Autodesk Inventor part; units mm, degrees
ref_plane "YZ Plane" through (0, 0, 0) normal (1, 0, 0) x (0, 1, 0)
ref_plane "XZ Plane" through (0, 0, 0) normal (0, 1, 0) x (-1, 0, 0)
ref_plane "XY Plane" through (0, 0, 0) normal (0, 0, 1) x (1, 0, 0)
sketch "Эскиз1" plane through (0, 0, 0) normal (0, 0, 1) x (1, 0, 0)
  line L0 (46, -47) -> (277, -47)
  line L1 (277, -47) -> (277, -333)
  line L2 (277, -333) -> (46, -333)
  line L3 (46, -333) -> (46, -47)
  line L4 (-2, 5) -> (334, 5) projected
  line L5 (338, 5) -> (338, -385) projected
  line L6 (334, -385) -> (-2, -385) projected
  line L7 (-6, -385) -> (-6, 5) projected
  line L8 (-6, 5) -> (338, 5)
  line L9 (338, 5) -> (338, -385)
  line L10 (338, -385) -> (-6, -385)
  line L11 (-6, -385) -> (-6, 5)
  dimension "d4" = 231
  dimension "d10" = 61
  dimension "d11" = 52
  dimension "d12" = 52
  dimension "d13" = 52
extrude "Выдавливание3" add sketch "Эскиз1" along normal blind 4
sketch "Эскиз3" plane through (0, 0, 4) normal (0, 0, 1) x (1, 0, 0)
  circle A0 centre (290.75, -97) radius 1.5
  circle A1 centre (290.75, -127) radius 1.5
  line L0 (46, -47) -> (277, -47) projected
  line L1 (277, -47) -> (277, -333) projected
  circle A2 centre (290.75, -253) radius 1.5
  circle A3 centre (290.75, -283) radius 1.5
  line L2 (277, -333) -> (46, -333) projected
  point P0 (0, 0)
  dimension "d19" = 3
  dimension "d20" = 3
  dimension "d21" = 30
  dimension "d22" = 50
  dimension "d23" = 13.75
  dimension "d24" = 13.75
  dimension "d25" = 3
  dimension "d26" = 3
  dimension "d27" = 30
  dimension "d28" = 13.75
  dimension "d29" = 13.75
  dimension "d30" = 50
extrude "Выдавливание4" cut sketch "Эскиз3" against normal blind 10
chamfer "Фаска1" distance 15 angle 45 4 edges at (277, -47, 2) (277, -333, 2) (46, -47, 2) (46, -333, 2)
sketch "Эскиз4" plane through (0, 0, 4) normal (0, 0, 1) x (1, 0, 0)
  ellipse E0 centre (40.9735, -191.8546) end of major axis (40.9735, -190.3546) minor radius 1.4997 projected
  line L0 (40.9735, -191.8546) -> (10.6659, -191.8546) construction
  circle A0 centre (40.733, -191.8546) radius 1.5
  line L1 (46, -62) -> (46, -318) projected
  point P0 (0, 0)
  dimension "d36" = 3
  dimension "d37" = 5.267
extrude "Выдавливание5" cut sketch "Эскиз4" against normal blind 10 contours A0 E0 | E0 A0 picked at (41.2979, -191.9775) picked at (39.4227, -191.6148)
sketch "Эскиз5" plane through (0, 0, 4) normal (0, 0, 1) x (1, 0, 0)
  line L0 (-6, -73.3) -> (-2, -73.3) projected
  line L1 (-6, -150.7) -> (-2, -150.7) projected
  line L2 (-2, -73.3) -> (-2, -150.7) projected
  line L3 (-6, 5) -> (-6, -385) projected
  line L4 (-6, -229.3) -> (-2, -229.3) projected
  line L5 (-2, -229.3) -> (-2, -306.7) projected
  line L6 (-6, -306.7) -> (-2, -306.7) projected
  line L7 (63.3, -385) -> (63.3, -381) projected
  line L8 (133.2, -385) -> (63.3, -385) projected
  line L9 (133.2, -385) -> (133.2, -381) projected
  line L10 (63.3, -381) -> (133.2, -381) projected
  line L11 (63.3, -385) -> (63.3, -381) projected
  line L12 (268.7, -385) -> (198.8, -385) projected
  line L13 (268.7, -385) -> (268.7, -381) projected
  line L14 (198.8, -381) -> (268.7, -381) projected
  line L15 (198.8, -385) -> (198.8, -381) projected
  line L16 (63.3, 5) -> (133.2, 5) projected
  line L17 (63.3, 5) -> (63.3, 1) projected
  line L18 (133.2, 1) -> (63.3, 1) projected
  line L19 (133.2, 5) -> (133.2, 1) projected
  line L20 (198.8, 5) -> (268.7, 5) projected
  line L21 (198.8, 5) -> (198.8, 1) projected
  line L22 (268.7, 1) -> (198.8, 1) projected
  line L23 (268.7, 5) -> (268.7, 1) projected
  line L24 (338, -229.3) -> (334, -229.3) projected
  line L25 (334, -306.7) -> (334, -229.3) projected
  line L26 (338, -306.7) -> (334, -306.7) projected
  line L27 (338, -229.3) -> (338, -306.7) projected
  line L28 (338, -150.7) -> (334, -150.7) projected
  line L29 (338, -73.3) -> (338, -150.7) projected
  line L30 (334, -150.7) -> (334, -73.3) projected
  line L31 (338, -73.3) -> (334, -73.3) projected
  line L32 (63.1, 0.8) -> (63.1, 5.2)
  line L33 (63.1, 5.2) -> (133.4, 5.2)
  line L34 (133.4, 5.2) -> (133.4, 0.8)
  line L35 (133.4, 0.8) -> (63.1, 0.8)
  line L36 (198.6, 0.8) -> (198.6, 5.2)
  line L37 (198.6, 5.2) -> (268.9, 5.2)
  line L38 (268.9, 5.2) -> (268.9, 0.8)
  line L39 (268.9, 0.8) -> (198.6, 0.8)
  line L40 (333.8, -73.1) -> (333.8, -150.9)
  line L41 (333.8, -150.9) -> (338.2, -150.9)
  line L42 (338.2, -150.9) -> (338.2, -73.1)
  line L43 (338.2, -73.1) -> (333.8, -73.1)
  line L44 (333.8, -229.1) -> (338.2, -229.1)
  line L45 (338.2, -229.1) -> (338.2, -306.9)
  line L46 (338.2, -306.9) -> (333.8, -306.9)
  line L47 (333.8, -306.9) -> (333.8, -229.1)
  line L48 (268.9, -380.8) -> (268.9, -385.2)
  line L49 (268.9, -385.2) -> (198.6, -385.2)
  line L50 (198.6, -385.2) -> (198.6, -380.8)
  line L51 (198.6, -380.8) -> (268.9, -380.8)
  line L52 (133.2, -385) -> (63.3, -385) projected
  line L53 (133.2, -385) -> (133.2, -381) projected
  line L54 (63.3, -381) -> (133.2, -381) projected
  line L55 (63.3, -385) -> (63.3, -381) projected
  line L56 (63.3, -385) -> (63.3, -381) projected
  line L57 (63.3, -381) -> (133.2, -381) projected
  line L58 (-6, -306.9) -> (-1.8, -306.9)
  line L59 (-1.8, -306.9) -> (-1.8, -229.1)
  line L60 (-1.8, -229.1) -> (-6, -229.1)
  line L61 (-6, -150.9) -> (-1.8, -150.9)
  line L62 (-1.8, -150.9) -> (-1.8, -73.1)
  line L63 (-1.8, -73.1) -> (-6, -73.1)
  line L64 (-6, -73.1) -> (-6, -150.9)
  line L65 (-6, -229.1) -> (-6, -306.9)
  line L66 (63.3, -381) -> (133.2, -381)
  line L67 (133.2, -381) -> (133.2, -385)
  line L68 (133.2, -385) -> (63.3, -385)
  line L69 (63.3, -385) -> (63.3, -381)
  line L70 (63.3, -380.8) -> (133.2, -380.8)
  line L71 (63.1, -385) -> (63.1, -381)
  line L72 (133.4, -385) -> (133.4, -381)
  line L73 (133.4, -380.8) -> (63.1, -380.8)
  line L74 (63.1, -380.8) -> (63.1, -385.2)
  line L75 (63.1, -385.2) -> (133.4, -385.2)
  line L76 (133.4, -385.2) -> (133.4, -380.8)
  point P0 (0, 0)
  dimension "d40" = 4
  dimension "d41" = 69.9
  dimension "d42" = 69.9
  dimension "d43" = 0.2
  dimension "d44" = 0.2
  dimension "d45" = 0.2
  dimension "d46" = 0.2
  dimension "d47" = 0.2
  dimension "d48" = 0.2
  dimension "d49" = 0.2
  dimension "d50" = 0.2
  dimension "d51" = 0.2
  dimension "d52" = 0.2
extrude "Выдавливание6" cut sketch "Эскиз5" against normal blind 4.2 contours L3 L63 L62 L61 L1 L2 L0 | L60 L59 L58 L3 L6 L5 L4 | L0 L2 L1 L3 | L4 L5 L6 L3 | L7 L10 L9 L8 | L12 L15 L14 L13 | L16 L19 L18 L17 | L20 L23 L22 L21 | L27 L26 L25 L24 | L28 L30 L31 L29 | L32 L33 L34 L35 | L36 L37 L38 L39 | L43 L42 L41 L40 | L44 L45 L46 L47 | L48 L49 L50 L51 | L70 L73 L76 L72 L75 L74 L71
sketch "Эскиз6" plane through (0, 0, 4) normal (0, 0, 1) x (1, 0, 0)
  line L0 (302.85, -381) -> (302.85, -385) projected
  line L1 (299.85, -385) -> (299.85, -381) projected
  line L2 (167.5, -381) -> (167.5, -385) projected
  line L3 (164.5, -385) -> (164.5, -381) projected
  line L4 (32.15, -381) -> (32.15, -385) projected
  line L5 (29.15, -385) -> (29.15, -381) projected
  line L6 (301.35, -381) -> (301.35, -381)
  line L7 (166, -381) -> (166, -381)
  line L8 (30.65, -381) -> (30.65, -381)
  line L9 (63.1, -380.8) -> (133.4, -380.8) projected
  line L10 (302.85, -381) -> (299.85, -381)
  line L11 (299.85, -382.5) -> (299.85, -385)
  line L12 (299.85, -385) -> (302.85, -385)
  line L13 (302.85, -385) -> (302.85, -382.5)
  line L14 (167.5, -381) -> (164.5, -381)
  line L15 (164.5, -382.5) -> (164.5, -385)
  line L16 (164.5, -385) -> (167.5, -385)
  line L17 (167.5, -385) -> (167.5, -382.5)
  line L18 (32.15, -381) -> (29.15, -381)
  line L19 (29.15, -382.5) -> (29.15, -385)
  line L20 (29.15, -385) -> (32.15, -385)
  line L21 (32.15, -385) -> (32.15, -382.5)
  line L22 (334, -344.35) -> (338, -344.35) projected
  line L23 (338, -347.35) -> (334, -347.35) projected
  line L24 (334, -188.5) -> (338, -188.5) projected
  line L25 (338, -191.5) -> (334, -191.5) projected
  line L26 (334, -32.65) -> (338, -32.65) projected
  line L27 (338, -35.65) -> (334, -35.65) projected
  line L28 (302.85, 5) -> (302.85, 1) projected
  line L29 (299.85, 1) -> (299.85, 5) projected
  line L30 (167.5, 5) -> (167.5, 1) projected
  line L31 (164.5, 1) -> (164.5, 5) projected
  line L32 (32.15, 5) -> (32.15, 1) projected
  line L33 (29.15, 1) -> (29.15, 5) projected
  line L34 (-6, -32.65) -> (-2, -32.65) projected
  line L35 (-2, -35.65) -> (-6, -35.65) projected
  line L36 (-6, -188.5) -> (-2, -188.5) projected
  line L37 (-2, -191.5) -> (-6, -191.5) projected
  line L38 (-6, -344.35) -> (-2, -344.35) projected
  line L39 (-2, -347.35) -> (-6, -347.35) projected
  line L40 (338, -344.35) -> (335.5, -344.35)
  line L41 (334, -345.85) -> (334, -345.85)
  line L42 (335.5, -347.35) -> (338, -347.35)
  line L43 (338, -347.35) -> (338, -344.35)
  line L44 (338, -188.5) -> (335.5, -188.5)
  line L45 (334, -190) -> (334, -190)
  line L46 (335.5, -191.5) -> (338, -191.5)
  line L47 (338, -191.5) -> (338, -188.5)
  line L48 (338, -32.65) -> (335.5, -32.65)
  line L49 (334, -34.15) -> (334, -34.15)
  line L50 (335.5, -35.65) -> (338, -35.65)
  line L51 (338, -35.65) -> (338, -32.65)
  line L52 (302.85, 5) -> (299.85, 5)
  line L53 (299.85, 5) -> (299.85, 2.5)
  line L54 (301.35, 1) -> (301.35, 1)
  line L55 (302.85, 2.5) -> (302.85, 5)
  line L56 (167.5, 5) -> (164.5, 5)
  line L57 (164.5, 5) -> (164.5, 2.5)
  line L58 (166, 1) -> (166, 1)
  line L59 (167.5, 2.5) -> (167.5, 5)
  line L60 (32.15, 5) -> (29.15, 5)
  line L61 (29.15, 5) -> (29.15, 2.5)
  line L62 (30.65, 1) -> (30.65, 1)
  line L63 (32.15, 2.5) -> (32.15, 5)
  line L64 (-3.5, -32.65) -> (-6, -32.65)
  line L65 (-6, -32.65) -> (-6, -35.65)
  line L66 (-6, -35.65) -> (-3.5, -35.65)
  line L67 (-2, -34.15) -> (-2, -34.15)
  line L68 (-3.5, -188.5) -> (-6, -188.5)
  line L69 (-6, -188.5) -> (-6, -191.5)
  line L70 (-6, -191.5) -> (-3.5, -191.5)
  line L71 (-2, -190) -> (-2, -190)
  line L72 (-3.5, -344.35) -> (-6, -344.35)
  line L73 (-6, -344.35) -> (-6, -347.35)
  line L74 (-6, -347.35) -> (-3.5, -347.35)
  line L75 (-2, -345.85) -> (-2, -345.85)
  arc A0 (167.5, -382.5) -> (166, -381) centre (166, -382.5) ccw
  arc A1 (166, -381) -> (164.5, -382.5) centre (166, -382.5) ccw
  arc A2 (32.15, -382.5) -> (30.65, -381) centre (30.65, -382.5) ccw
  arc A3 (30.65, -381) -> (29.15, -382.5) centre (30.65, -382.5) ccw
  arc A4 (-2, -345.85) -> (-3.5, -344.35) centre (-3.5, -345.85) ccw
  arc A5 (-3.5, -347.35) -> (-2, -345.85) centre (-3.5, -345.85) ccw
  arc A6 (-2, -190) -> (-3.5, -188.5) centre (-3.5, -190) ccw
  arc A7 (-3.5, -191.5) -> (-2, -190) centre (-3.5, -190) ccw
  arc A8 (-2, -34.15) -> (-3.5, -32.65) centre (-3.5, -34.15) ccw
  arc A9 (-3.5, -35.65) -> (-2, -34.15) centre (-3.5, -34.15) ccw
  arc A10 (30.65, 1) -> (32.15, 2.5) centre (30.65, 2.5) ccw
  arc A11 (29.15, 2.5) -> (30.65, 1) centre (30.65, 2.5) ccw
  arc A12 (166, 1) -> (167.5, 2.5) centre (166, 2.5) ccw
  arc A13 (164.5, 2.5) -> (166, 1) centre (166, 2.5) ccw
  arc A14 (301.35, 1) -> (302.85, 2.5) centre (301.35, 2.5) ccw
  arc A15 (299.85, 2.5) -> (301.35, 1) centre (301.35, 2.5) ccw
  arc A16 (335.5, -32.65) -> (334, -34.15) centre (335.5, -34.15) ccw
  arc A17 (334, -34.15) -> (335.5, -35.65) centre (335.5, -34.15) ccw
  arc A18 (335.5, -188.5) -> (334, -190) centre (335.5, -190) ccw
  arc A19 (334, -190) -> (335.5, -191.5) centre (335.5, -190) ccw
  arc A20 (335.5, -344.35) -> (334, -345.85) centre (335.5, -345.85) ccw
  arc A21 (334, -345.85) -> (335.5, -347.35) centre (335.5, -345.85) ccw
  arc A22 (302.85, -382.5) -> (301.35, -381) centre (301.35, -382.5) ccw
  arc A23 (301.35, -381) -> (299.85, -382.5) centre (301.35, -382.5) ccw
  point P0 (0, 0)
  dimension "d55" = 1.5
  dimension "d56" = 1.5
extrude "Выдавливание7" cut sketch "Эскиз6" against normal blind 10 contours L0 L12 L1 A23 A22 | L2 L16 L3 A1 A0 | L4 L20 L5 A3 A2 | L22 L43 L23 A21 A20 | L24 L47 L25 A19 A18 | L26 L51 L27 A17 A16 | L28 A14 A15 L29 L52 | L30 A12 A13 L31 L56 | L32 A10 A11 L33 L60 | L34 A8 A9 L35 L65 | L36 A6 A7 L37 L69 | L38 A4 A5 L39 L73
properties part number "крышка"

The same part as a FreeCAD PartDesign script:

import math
import FreeCAD as App
import Part
import Sketcher

V = App.Vector
Q = App.Units.Quantity


def edges_at(feature, points):
    """Names of the edges that pass closest to the given points."""
    edges = feature.Shape.Edges
    near = lambda p: min(range(len(edges)), key=lambda i: edges[i].distToShape(Part.Vertex(*p))[0])
    return sorted({f"Edge{near(p) + 1}" for p in points})

doc = App.newDocument("Part")
params = doc.addObject("Spreadsheet::Sheet", "Params")
for row, (alias, value) in enumerate([
    ("sketch1_width", "231 mm"),
    ("sketch1_height", "390 mm"),
    ("pad1_length", "4 mm"),
    ("sketch2_diameter", "3 mm"),
    ("pocket1_length", "10 mm"),
    ("chamfer_size", "15 mm"),
    ("sketch3_diameter", "3 mm"),
    ("pocket2_length", "10 mm"),
    ("sketch4_width", "4.2 mm"),
    ("sketch4_width2", "70.3 mm"),
    ("sketch4_width3", "4.4 mm"),
    ("sketch4_height", "77.8 mm"),
    ("pocket3_length", "4.2 mm"),
    ("sketch5_radius", "1.5 mm"),
    ("sketch5_width", "2.5 mm"),
    ("pocket4_length", "10 mm"),
], start=1):
    params.set(f"A{row}", alias)
    params.set(f"B{row}", "=" + value)
    params.setAlias(f"B{row}", alias)

body = doc.addObject("PartDesign::Body", "Body")

sketch1 = body.newObject("Sketcher::SketchObject", "Sketch")
sketch1.AttachmentSupport = (doc.getObject("XY_Plane"), [""])
sketch1.MapMode = "FlatFace"
sketch1.addGeometry([
    Part.LineSegment(V(338, 5, 0), V(-6, 5, 0)),
    Part.LineSegment(V(-6, 5, 0), V(-6, -385, 0)),
    Part.LineSegment(V(-6, -385, 0), V(338, -385, 0)),
    Part.LineSegment(V(338, -385, 0), V(338, 5, 0)),
    Part.LineSegment(V(46, -333, 0), V(46, -47, 0)),
    Part.LineSegment(V(46, -47, 0), V(277, -47, 0)),
    Part.LineSegment(V(277, -47, 0), V(277, -333, 0)),
    Part.LineSegment(V(277, -333, 0), V(46, -333, 0)),
], False)
sketch1.addConstraint([
    Sketcher.Constraint("Coincident", 0, 2, 1, 1),
    Sketcher.Constraint("Coincident", 1, 2, 2, 1),
    Sketcher.Constraint("Coincident", 2, 2, 3, 1),
    Sketcher.Constraint("Coincident", 3, 2, 0, 1),
    Sketcher.Constraint("Coincident", 4, 2, 5, 1),
    Sketcher.Constraint("Coincident", 5, 2, 6, 1),
    Sketcher.Constraint("Coincident", 6, 2, 7, 1),
    Sketcher.Constraint("Coincident", 7, 2, 4, 1),
    Sketcher.Constraint("Horizontal", 0),
    Sketcher.Constraint("Vertical", 1),
    Sketcher.Constraint("Horizontal", 2),
    Sketcher.Constraint("Vertical", 3),
    Sketcher.Constraint("Vertical", 4),
    Sketcher.Constraint("Horizontal", 5),
    Sketcher.Constraint("Vertical", 6),
    Sketcher.Constraint("Horizontal", 7),
    Sketcher.Constraint("DistanceX", 5, 1, 5, 2, Q("231 mm")),
    Sketcher.Constraint("DistanceX", 0, 2, 4, 2, Q("52 mm")),
    Sketcher.Constraint("DistanceY", 4, 2, 0, 2, Q("52 mm")),
    Sketcher.Constraint("DistanceX", 5, 2, 3, 2, Q("61 mm")),
    Sketcher.Constraint("DistanceY", 2, 2, 6, 2, Q("52 mm")),
    Sketcher.Constraint("DistanceY", 1, 2, 1, 1, Q("390 mm")),
    Sketcher.Constraint("DistanceX", 0, 2, -1, 1, Q("6 mm")),
    Sketcher.Constraint("DistanceY", -1, 1, 0, 2, Q("5 mm")),
])
sketch1.setExpression("Constraints[16]", "Params.sketch1_width")
sketch1.setExpression("Constraints[21]", "Params.sketch1_height")
pad1 = body.newObject("PartDesign::Pad", "Pad")
pad1.Profile = sketch1
pad1.setExpression("Length", "Params.pad1_length")

sketch2 = body.newObject("Sketcher::SketchObject", "Sketch001")
sketch2.AttachmentSupport = (doc.getObject("XY_Plane"), [""])
sketch2.MapMode = "FlatFace"
sketch2.AttachmentOffset = App.Placement(V(0, 0, 4), App.Rotation())
sketch2.addGeometry([
    Part.Circle(V(290.8, -97, 0), V(0, 0, 1), 1.5),
    Part.Circle(V(290.8, -127, 0), V(0, 0, 1), 1.5),
    Part.Circle(V(290.8, -253, 0), V(0, 0, 1), 1.5),
    Part.Circle(V(290.8, -283, 0), V(0, 0, 1), 1.5),
], False)
sketch2.addConstraint([
    Sketcher.Constraint("Equal", 0, 1),
    Sketcher.Constraint("Equal", 1, 2),
    Sketcher.Constraint("Equal", 2, 3),
    Sketcher.Constraint("Vertical", 0, 3, 1, 3),
    Sketcher.Constraint("Vertical", 1, 3, 2, 3),
    Sketcher.Constraint("Vertical", 2, 3, 3, 3),
    Sketcher.Constraint("Diameter", 0, Q("3 mm")),
    Sketcher.Constraint("DistanceY", 1, 3, 0, 3, Q("30 mm")),
    Sketcher.Constraint("DistanceY", 3, 3, 2, 3, Q("30 mm")),
    Sketcher.Constraint("DistanceY", 0, 3, -1, 1, Q("97 mm")),
    Sketcher.Constraint("DistanceY", 2, 3, -1, 1, Q("253 mm")),
    Sketcher.Constraint("DistanceX", -1, 1, 0, 3, Q("290.75 mm")),
])
sketch2.setExpression("Constraints[6]", "Params.sketch2_diameter")
pocket1 = body.newObject("PartDesign::Pocket", "Pocket")
pocket1.Profile = sketch2
pocket1.setExpression("Length", "Params.pocket1_length")
doc.recompute()

chamfer = body.newObject("PartDesign::Chamfer", "Chamfer")
chamfer.Base = (pocket1, edges_at(pocket1, [
    (277, -47, 2),
    (277, -333, 2),
    (46, -47, 2),
    (46, -333, 2),
]))
chamfer.setExpression("Size", "Params.chamfer_size")

sketch3 = body.newObject("Sketcher::SketchObject", "Sketch002")
sketch3.AttachmentSupport = (doc.getObject("XY_Plane"), [""])
sketch3.MapMode = "FlatFace"
sketch3.AttachmentOffset = App.Placement(V(0, 0, 4), App.Rotation())
sketch3.addGeometry(Part.Circle(V(40.7, -191.9, 0), V(0, 0, 1), 1.5), False)
sketch3.addConstraint([
    Sketcher.Constraint("Diameter", 0, Q("3 mm")),
    Sketcher.Constraint("DistanceX", -1, 1, 0, 3, Q("40.733 mm")),
    Sketcher.Constraint("DistanceY", 0, 3, -1, 1, Q("191.8546 mm")),
])
sketch3.setExpression("Constraints[0]", "Params.sketch3_diameter")
pocket2 = body.newObject("PartDesign::Pocket", "Pocket001")
pocket2.Profile = sketch3
pocket2.setExpression("Length", "Params.pocket2_length")

sketch4 = body.newObject("Sketcher::SketchObject", "Sketch003")
sketch4.AttachmentSupport = (doc.getObject("XY_Plane"), [""])
sketch4.MapMode = "FlatFace"
sketch4.AttachmentOffset = App.Placement(V(0, 0, 4), App.Rotation())
sketch4.addGeometry([
    Part.LineSegment(V(-6, -73.1, 0), V(-6, -150.9, 0)),
    Part.LineSegment(V(-6, -150.9, 0), V(-1.8, -150.9, 0)),
    Part.LineSegment(V(-1.8, -150.9, 0), V(-1.8, -73.1, 0)),
    Part.LineSegment(V(-1.8, -73.1, 0), V(-6, -73.1, 0)),
    Part.LineSegment(V(-1.8, -229.1, 0), V(-6, -229.1, 0)),
    Part.LineSegment(V(-6, -229.1, 0), V(-6, -306.9, 0)),
    Part.LineSegment(V(-6, -306.9, 0), V(-1.8, -306.9, 0)),
    Part.LineSegment(V(-1.8, -306.9, 0), V(-1.8, -229.1, 0)),
    Part.LineSegment(V(63.1, -380.8, 0), V(63.1, -385.2, 0)),
    Part.LineSegment(V(63.1, -385.2, 0), V(133.4, -385.2, 0)),
    Part.LineSegment(V(133.4, -385.2, 0), V(133.4, -380.8, 0)),
    Part.LineSegment(V(133.4, -380.8, 0), V(63.1, -380.8, 0)),
    Part.LineSegment(V(268.9, -385.2, 0), V(268.9, -380.8, 0)),
    Part.LineSegment(V(268.9, -380.8, 0), V(198.6, -380.8, 0)),
    Part.LineSegment(V(198.6, -380.8, 0), V(198.6, -385.2, 0)),
    Part.LineSegment(V(198.6, -385.2, 0), V(268.9, -385.2, 0)),
    Part.LineSegment(V(63.1, 5.2, 0), V(63.1, 0.8, 0)),
    Part.LineSegment(V(63.1, 0.8, 0), V(133.4, 0.8, 0)),
    Part.LineSegment(V(133.4, 0.8, 0), V(133.4, 5.2, 0)),
    Part.LineSegment(V(133.4, 5.2, 0), V(63.1, 5.2, 0)),
    Part.LineSegment(V(198.6, 5.2, 0), V(198.6, 0.8, 0)),
    Part.LineSegment(V(198.6, 0.8, 0), V(268.9, 0.8, 0)),
    Part.LineSegment(V(268.9, 0.8, 0), V(268.9, 5.2, 0)),
    Part.LineSegment(V(268.9, 5.2, 0), V(198.6, 5.2, 0)),
    Part.LineSegment(V(338.2, -229.1, 0), V(333.8, -229.1, 0)),
    Part.LineSegment(V(333.8, -229.1, 0), V(333.8, -306.9, 0)),
    Part.LineSegment(V(333.8, -306.9, 0), V(338.2, -306.9, 0)),
    Part.LineSegment(V(338.2, -306.9, 0), V(338.2, -229.1, 0)),
    Part.LineSegment(V(338.2, -73.1, 0), V(333.8, -73.1, 0)),
    Part.LineSegment(V(333.8, -73.1, 0), V(333.8, -150.9, 0)),
    Part.LineSegment(V(333.8, -150.9, 0), V(338.2, -150.9, 0)),
    Part.LineSegment(V(338.2, -150.9, 0), V(338.2, -73.1, 0)),
], False)
sketch4.addConstraint([
    Sketcher.Constraint("Coincident", 0, 2, 1, 1),
    Sketcher.Constraint("Coincident", 1, 2, 2, 1),
    Sketcher.Constraint("Coincident", 2, 2, 3, 1),
    Sketcher.Constraint("Coincident", 3, 2, 0, 1),
    Sketcher.Constraint("Coincident", 4, 2, 5, 1),
    Sketcher.Constraint("Coincident", 5, 2, 6, 1),
    Sketcher.Constraint("Coincident", 6, 2, 7, 1),
    Sketcher.Constraint("Coincident", 7, 2, 4, 1),
    Sketcher.Constraint("Coincident", 8, 2, 9, 1),
    Sketcher.Constraint("Coincident", 9, 2, 10, 1),
    Sketcher.Constraint("Coincident", 10, 2, 11, 1),
    Sketcher.Constraint("Coincident", 11, 2, 8, 1),
    Sketcher.Constraint("Coincident", 12, 2, 13, 1),
    Sketcher.Constraint("Coincident", 13, 2, 14, 1),
    Sketcher.Constraint("Coincident", 14, 2, 15, 1),
    Sketcher.Constraint("Coincident", 15, 2, 12, 1),
    Sketcher.Constraint("Coincident", 16, 2, 17, 1),
    Sketcher.Constraint("Coincident", 17, 2, 18, 1),
    Sketcher.Constraint("Coincident", 18, 2, 19, 1),
    Sketcher.Constraint("Coincident", 19, 2, 16, 1),
    Sketcher.Constraint("Coincident", 20, 2, 21, 1),
    Sketcher.Constraint("Coincident", 21, 2, 22, 1),
    Sketcher.Constraint("Coincident", 22, 2, 23, 1),
    Sketcher.Constraint("Coincident", 23, 2, 20, 1),
    Sketcher.Constraint("Coincident", 24, 2, 25, 1),
    Sketcher.Constraint("Coincident", 25, 2, 26, 1),
    Sketcher.Constraint("Coincident", 26, 2, 27, 1),
    Sketcher.Constraint("Coincident", 27, 2, 24, 1),
    Sketcher.Constraint("Coincident", 28, 2, 29, 1),
    Sketcher.Constraint("Coincident", 29, 2, 30, 1),
    Sketcher.Constraint("Coincident", 30, 2, 31, 1),
    Sketcher.Constraint("Coincident", 31, 2, 28, 1),
    Sketcher.Constraint("Vertical", 0),
    Sketcher.Constraint("Horizontal", 1),
    Sketcher.Constraint("Vertical", 2),
    Sketcher.Constraint("Horizontal", 3),
    Sketcher.Constraint("Horizontal", 4),
    Sketcher.Constraint("Vertical", 5),
    Sketcher.Constraint("Horizontal", 6),
    Sketcher.Constraint("Vertical", 7),
    Sketcher.Constraint("Vertical", 8),
    Sketcher.Constraint("Horizontal", 9),
    Sketcher.Constraint("Vertical", 10),
    Sketcher.Constraint("Horizontal", 11),
    Sketcher.Constraint("Vertical", 12),
    Sketcher.Constraint("Horizontal", 13),
    Sketcher.Constraint("Vertical", 14),
    Sketcher.Constraint("Horizontal", 15),
    Sketcher.Constraint("Vertical", 16),
    Sketcher.Constraint("Horizontal", 17),
    Sketcher.Constraint("Vertical", 18),
    Sketcher.Constraint("Horizontal", 19),
    Sketcher.Constraint("Vertical", 20),
    Sketcher.Constraint("Horizontal", 21),
    Sketcher.Constraint("Vertical", 22),
    Sketcher.Constraint("Horizontal", 23),
    Sketcher.Constraint("Horizontal", 24),
    Sketcher.Constraint("Vertical", 25),
    Sketcher.Constraint("Horizontal", 26),
    Sketcher.Constraint("Vertical", 27),
    Sketcher.Constraint("Horizontal", 28),
    Sketcher.Constraint("Vertical", 29),
    Sketcher.Constraint("Horizontal", 30),
    Sketcher.Constraint("Vertical", 31),
    Sketcher.Constraint("Horizontal", 11, 2, 12, 2),
    Sketcher.Constraint("Horizontal", 9, 2, 14, 2),
    Sketcher.Constraint("Horizontal", 17, 2, 20, 2),
    Sketcher.Constraint("Horizontal", 19, 2, 22, 2),
    Sketcher.Constraint("Horizontal", 7, 2, 24, 2),
    Sketcher.Constraint("Horizontal", 6, 2, 25, 2),
    Sketcher.Constraint("Horizontal", 3, 2, 28, 2),
    Sketcher.Constraint("Horizontal", 1, 2, 29, 2),
    Sketcher.Constraint("Vertical", 3, 2, 4, 2),
    Sketcher.Constraint("Vertical", 2, 2, 6, 2),
    Sketcher.Constraint("Vertical", 11, 2, 16, 2),
    Sketcher.Constraint("Vertical", 10, 2, 17, 2),
    Sketcher.Constraint("Vertical", 14, 2, 20, 2),
    Sketcher.Constraint("Vertical", 15, 2, 21, 2),
    Sketcher.Constraint("Vertical", 25, 2, 28, 2),
    Sketcher.Constraint("Vertical", 27, 2, 30, 2),
    Sketcher.Constraint("Equal", 11, 13),
    Sketcher.Constraint("Equal", 2, 5),
    Sketcher.Constraint("Equal", 30, 8),
    Sketcher.Constraint("Equal", 14, 16),
    Sketcher.Constraint("DistanceX", 1, 1, 1, 2, Q("4.2 mm")),
    Sketcher.Constraint("DistanceX", 9, 1, 9, 2, Q("70.3 mm")),
    Sketcher.Constraint("DistanceX", 24, 2, 24, 1, Q("4.4 mm")),
    Sketcher.Constraint("DistanceY", 0, 2, 0, 1, Q("77.8 mm")),
    Sketcher.Constraint("DistanceX", 0, 2, -1, 1, Q("6 mm")),
    Sketcher.Constraint("DistanceY", 4, 2, 3, 2, Q("156 mm")),
    Sketcher.Constraint("DistanceY", 0, 2, -1, 1, Q("150.9 mm")),
    Sketcher.Constraint("DistanceX", -1, 1, 8, 2, Q("63.1 mm")),
    Sketcher.Constraint("DistanceY", 8, 2, -1, 1, Q("385.2 mm")),
    Sketcher.Constraint("DistanceX", -1, 1, 12, 2, Q("268.9 mm")),
    Sketcher.Constraint("DistanceY", -1, 1, 16, 2, Q("0.8 mm")),
    Sketcher.Constraint("DistanceX", -1, 1, 24, 2, Q("333.8 mm")),
])
sketch4.setExpression("Constraints[84]", "Params.sketch4_width")
sketch4.setExpression("Constraints[85]", "Params.sketch4_width2")
sketch4.setExpression("Constraints[86]", "Params.sketch4_width3")
sketch4.setExpression("Constraints[87]", "Params.sketch4_height")
pocket3 = body.newObject("PartDesign::Pocket", "Pocket002")
pocket3.Profile = sketch4
pocket3.setExpression("Length", "Params.pocket3_length")

sketch5 = body.newObject("Sketcher::SketchObject", "Sketch004")
sketch5.AttachmentSupport = (doc.getObject("XY_Plane"), [""])
sketch5.MapMode = "FlatFace"
sketch5.AttachmentOffset = App.Placement(V(0, 0, 4), App.Rotation())
sketch5.addGeometry([
    Part.LineSegment(V(302.9, -385, 0), V(302.9, -382.5, 0)),
    Part.ArcOfCircle(Part.Circle(V(301.4, -382.5, 0), V(0, 0, 1), 1.5), math.radians(0), math.radians(180)),
    Part.LineSegment(V(299.9, -382.5, 0), V(299.9, -385, 0)),
    Part.LineSegment(V(299.9, -385, 0), V(302.9, -385, 0)),
    Part.LineSegment(V(167.5, -385, 0), V(167.5, -382.5, 0)),
    Part.ArcOfCircle(Part.Circle(V(166, -382.5, 0), V(0, 0, 1), 1.5), math.radians(0), math.radians(180)),
    Part.LineSegment(V(164.5, -382.5, 0), V(164.5, -385, 0)),
    Part.LineSegment(V(164.5, -385, 0), V(167.5, -385, 0)),
    Part.LineSegment(V(32.1, -385, 0), V(32.1, -382.5, 0)),
    Part.ArcOfCircle(Part.Circle(V(30.6, -382.5, 0), V(0, 0, 1), 1.5), math.radians(0), math.radians(180)),
    Part.LineSegment(V(29.1, -382.5, 0), V(29.1, -385, 0)),
    Part.LineSegment(V(29.1, -385, 0), V(32.1, -385, 0)),
    Part.LineSegment(V(338, -344.4, 0), V(335.5, -344.4, 0)),
    Part.ArcOfCircle(Part.Circle(V(335.5, -345.9, 0), V(0, 0, 1), 1.5), math.radians(90), math.radians(270)),
    Part.LineSegment(V(335.5, -347.4, 0), V(338, -347.4, 0)),
    Part.LineSegment(V(338, -347.4, 0), V(338, -344.4, 0)),
    Part.LineSegment(V(338, -188.5, 0), V(335.5, -188.5, 0)),
    Part.ArcOfCircle(Part.Circle(V(335.5, -190, 0), V(0, 0, 1), 1.5), math.radians(90), math.radians(270)),
    Part.LineSegment(V(335.5, -191.5, 0), V(338, -191.5, 0)),
    Part.LineSegment(V(338, -191.5, 0), V(338, -188.5, 0)),
    Part.LineSegment(V(338, -32.6, 0), V(335.5, -32.6, 0)),
    Part.ArcOfCircle(Part.Circle(V(335.5, -34.1, 0), V(0, 0, 1), 1.5), math.radians(90), math.radians(270)),
    Part.LineSegment(V(335.5, -35.6, 0), V(338, -35.6, 0)),
    Part.LineSegment(V(338, -35.6, 0), V(338, -32.6, 0)),
    Part.LineSegment(V(302.9, 2.5, 0), V(302.9, 5, 0)),
    Part.LineSegment(V(302.9, 5, 0), V(299.9, 5, 0)),
    Part.LineSegment(V(299.9, 5, 0), V(299.9, 2.5, 0)),
    Part.ArcOfCircle(Part.Circle(V(301.4, 2.5, 0), V(0, 0, 1), 1.5), math.radians(180), math.radians(360)),
    Part.LineSegment(V(167.5, 2.5, 0), V(167.5, 5, 0)),
    Part.LineSegment(V(167.5, 5, 0), V(164.5, 5, 0)),
    Part.LineSegment(V(164.5, 5, 0), V(164.5, 2.5, 0)),
    Part.ArcOfCircle(Part.Circle(V(166, 2.5, 0), V(0, 0, 1), 1.5), math.radians(180), math.radians(360)),
    Part.LineSegment(V(32.1, 2.5, 0), V(32.1, 5, 0)),
    Part.LineSegment(V(32.1, 5, 0), V(29.1, 5, 0)),
    Part.LineSegment(V(29.1, 5, 0), V(29.1, 2.5, 0)),
    Part.ArcOfCircle(Part.Circle(V(30.6, 2.5, 0), V(0, 0, 1), 1.5), math.radians(180), math.radians(360)),
    Part.LineSegment(V(-3.5, -32.6, 0), V(-6, -32.6, 0)),
    Part.LineSegment(V(-6, -32.6, 0), V(-6, -35.6, 0)),
    Part.LineSegment(V(-6, -35.6, 0), V(-3.5, -35.6, 0)),
    Part.ArcOfCircle(Part.Circle(V(-3.5, -34.1, 0), V(0, 0, 1), 1.5), math.radians(-90), math.radians(90)),
    Part.LineSegment(V(-3.5, -188.5, 0), V(-6, -188.5, 0)),
    Part.LineSegment(V(-6, -188.5, 0), V(-6, -191.5, 0)),
    Part.LineSegment(V(-6, -191.5, 0), V(-3.5, -191.5, 0)),
    Part.ArcOfCircle(Part.Circle(V(-3.5, -190, 0), V(0, 0, 1), 1.5), math.radians(-90), math.radians(90)),
    Part.LineSegment(V(-3.5, -344.4, 0), V(-6, -344.4, 0)),
    Part.LineSegment(V(-6, -344.4, 0), V(-6, -347.4, 0)),
    Part.LineSegment(V(-6, -347.4, 0), V(-3.5, -347.4, 0)),
    Part.ArcOfCircle(Part.Circle(V(-3.5, -345.9, 0), V(0, 0, 1), 1.5), math.radians(-90), math.radians(90)),
], False)
sketch5.addConstraint([
    Sketcher.Constraint("Tangent", 0, 2, 1, 1),
    Sketcher.Constraint("Tangent", 1, 2, 2, 1),
    Sketcher.Constraint("Coincident", 2, 2, 3, 1),
    Sketcher.Constraint("Coincident", 3, 2, 0, 1),
    Sketcher.Constraint("Tangent", 4, 2, 5, 1),
    Sketcher.Constraint("Tangent", 5, 2, 6, 1),
    Sketcher.Constraint("Coincident", 6, 2, 7, 1),
    Sketcher.Constraint("Coincident", 7, 2, 4, 1),
    Sketcher.Constraint("Tangent", 8, 2, 9, 1),
    Sketcher.Constraint("Tangent", 9, 2, 10, 1),
    Sketcher.Constraint("Coincident", 10, 2, 11, 1),
    Sketcher.Constraint("Coincident", 11, 2, 8, 1),
    Sketcher.Constraint("Tangent", 12, 2, 13, 1),
    Sketcher.Constraint("Tangent", 13, 2, 14, 1),
    Sketcher.Constraint("Coincident", 14, 2, 15, 1),
    Sketcher.Constraint("Coincident", 15, 2, 12, 1),
    Sketcher.Constraint("Tangent", 16, 2, 17, 1),
    Sketcher.Constraint("Tangent", 17, 2, 18, 1),
    Sketcher.Constraint("Coincident", 18, 2, 19, 1),
    Sketcher.Constraint("Coincident", 19, 2, 16, 1),
    Sketcher.Constraint("Tangent", 20, 2, 21, 1),
    Sketcher.Constraint("Tangent", 21, 2, 22, 1),
    Sketcher.Constraint("Coincident", 22, 2, 23, 1),
    Sketcher.Constraint("Coincident", 23, 2, 20, 1),
    Sketcher.Constraint("Coincident", 24, 2, 25, 1),
    Sketcher.Constraint("Coincident", 25, 2, 26, 1),
    Sketcher.Constraint("Tangent", 26, 2, 27, 1),
    Sketcher.Constraint("Tangent", 27, 2, 24, 1),
    Sketcher.Constraint("Coincident", 28, 2, 29, 1),
    Sketcher.Constraint("Coincident", 29, 2, 30, 1),
    Sketcher.Constraint("Tangent", 30, 2, 31, 1),
    Sketcher.Constraint("Tangent", 31, 2, 28, 1),
    Sketcher.Constraint("Coincident", 32, 2, 33, 1),
    Sketcher.Constraint("Coincident", 33, 2, 34, 1),
    Sketcher.Constraint("Tangent", 34, 2, 35, 1),
    Sketcher.Constraint("Tangent", 35, 2, 32, 1),
    Sketcher.Constraint("Coincident", 36, 2, 37, 1),
    Sketcher.Constraint("Coincident", 37, 2, 38, 1),
    Sketcher.Constraint("Tangent", 38, 2, 39, 1),
    Sketcher.Constraint("Tangent", 39, 2, 36, 1),
    Sketcher.Constraint("Coincident", 40, 2, 41, 1),
    Sketcher.Constraint("Coincident", 41, 2, 42, 1),
    Sketcher.Constraint("Tangent", 42, 2, 43, 1),
    Sketcher.Constraint("Tangent", 43, 2, 40, 1),
    Sketcher.Constraint("Coincident", 44, 2, 45, 1),
    Sketcher.Constraint("Coincident", 45, 2, 46, 1),
    Sketcher.Constraint("Tangent", 46, 2, 47, 1),
    Sketcher.Constraint("Tangent", 47, 2, 44, 1),
    Sketcher.Constraint("Vertical", 0),
    Sketcher.Constraint("Vertical", 2),
    Sketcher.Constraint("Horizontal", 3),
    Sketcher.Constraint("Vertical", 4),
    Sketcher.Constraint("Vertical", 6),
    Sketcher.Constraint("Horizontal", 7),
    Sketcher.Constraint("Vertical", 8),
    Sketcher.Constraint("Vertical", 10),
    Sketcher.Constraint("Horizontal", 11),
    Sketcher.Constraint("Horizontal", 12),
    Sketcher.Constraint("Horizontal", 14),
    Sketcher.Constraint("Vertical", 15),
    Sketcher.Constraint("Horizontal", 16),
    Sketcher.Constraint("Horizontal", 18),
    Sketcher.Constraint("Vertical", 19),
    Sketcher.Constraint("Horizontal", 20),
    Sketcher.Constraint("Horizontal", 22),
    Sketcher.Constraint("Vertical", 23),
    Sketcher.Constraint("Vertical", 24),
    Sketcher.Constraint("Horizontal", 25),
    Sketcher.Constraint("Vertical", 26),
    Sketcher.Constraint("Vertical", 28),
    Sketcher.Constraint("Horizontal", 29),
    Sketcher.Constraint("Vertical", 30),
    Sketcher.Constraint("Vertical", 32),
    Sketcher.Constraint("Horizontal", 33),
    Sketcher.Constraint("Vertical", 34),
    Sketcher.Constraint("Horizontal", 36),
    Sketcher.Constraint("Vertical", 37),
    Sketcher.Constraint("Horizontal", 38),
    Sketcher.Constraint("Horizontal", 40),
    Sketcher.Constraint("Vertical", 41),
    Sketcher.Constraint("Horizontal", 42),
    Sketcher.Constraint("Horizontal", 44),
    Sketcher.Constraint("Vertical", 45),
    Sketcher.Constraint("Horizontal", 46),
    Sketcher.Constraint("Equal", 1, 5),
    Sketcher.Constraint("Equal", 5, 9),
    Sketcher.Constraint("Equal", 9, 13),
    Sketcher.Constraint("Equal", 13, 17),
    Sketcher.Constraint("Equal", 17, 21),
    Sketcher.Constraint("Equal", 21, 27),
    Sketcher.Constraint("Equal", 27, 31),
    Sketcher.Constraint("Equal", 31, 35),
    Sketcher.Constraint("Equal", 35, 39),
    Sketcher.Constraint("Equal", 39, 43),
    Sketcher.Constraint("Equal", 43, 47),
    Sketcher.Constraint("Horizontal", 1, 3, 5, 3),
    Sketcher.Constraint("Horizontal", 5, 3, 9, 3),
    Sketcher.Constraint("Horizontal", 27, 3, 31, 3),
    Sketcher.Constraint("Horizontal", 31, 3, 35, 3),
    Sketcher.Constraint("Horizontal", 21, 3, 39, 3),
    Sketcher.Constraint("Horizontal", 17, 3, 43, 3),
    Sketcher.Constraint("Horizontal", 13, 3, 47, 3),
    Sketcher.Constraint("Horizontal", 3, 2, 6, 2),
    Sketcher.Constraint("Horizontal", 7, 2, 10, 2),
    Sketcher.Constraint("Horizontal", 25, 2, 28, 2),
    Sketcher.Constraint("Horizontal", 29, 2, 32, 2),
    Sketcher.Constraint("Vertical", 13, 3, 17, 3),
    Sketcher.Constraint("Vertical", 17, 3, 21, 3),
    Sketcher.Constraint("Vertical", 1, 3, 27, 3),
    Sketcher.Constraint("Vertical", 5, 3, 31, 3),
    Sketcher.Constraint("Vertical", 9, 3, 35, 3),
    Sketcher.Constraint("Vertical", 39, 3, 43, 3),
    Sketcher.Constraint("Vertical", 43, 3, 47, 3),
    Sketcher.Constraint("Vertical", 15, 2, 18, 2),
    Sketcher.Constraint("Vertical", 19, 2, 22, 2),
    Sketcher.Constraint("Vertical", 37, 2, 40, 2),
    Sketcher.Constraint("Vertical", 41, 2, 44, 2),
    Sketcher.Constraint("Equal", 22, 36),
    Sketcher.Constraint("Equal", 46, 0),
    Sketcher.Constraint("Equal", 10, 24),
    Sketcher.Constraint("Radius", 1, Q("1.5 mm")),
    Sketcher.Constraint("DistanceX", 12, 2, 12, 1, Q("2.5 mm")),
    Sketcher.Constraint("DistanceX", -1, 1, 5, 3, Q("166 mm")),
    Sketcher.Constraint("DistanceY", 17, 3, -1, 1, Q("190 mm")),
    Sketcher.Constraint("DistanceY", 2, 2, -1, 1, Q("385 mm")),
    Sketcher.Constraint("DistanceX", -1, 1, 14, 2, Q("338 mm")),
    Sketcher.Constraint("DistanceY", -1, 1, 24, 2, Q("5 mm")),
    Sketcher.Constraint("DistanceX", 36, 2, -1, 1, Q("6 mm")),
    Sketcher.Constraint("DistanceX", 9, 3, 1, 3, Q("270.7 mm")),
    Sketcher.Constraint("DistanceY", 13, 3, 21, 3, Q("311.7 mm")),
    Sketcher.Constraint("DistanceX", -1, 1, 1, 3, Q("301.35 mm")),
    Sketcher.Constraint("DistanceY", 13, 3, -1, 1, Q("345.85 mm")),
])
sketch5.setExpression("Constraints[120]", "Params.sketch5_radius")
sketch5.setExpression("Constraints[121]", "Params.sketch5_width")
pocket4 = body.newObject("PartDesign::Pocket", "Pocket003")
pocket4.Profile = sketch5
pocket4.setExpression("Length", "Params.pocket4_length")

doc.recompute()
